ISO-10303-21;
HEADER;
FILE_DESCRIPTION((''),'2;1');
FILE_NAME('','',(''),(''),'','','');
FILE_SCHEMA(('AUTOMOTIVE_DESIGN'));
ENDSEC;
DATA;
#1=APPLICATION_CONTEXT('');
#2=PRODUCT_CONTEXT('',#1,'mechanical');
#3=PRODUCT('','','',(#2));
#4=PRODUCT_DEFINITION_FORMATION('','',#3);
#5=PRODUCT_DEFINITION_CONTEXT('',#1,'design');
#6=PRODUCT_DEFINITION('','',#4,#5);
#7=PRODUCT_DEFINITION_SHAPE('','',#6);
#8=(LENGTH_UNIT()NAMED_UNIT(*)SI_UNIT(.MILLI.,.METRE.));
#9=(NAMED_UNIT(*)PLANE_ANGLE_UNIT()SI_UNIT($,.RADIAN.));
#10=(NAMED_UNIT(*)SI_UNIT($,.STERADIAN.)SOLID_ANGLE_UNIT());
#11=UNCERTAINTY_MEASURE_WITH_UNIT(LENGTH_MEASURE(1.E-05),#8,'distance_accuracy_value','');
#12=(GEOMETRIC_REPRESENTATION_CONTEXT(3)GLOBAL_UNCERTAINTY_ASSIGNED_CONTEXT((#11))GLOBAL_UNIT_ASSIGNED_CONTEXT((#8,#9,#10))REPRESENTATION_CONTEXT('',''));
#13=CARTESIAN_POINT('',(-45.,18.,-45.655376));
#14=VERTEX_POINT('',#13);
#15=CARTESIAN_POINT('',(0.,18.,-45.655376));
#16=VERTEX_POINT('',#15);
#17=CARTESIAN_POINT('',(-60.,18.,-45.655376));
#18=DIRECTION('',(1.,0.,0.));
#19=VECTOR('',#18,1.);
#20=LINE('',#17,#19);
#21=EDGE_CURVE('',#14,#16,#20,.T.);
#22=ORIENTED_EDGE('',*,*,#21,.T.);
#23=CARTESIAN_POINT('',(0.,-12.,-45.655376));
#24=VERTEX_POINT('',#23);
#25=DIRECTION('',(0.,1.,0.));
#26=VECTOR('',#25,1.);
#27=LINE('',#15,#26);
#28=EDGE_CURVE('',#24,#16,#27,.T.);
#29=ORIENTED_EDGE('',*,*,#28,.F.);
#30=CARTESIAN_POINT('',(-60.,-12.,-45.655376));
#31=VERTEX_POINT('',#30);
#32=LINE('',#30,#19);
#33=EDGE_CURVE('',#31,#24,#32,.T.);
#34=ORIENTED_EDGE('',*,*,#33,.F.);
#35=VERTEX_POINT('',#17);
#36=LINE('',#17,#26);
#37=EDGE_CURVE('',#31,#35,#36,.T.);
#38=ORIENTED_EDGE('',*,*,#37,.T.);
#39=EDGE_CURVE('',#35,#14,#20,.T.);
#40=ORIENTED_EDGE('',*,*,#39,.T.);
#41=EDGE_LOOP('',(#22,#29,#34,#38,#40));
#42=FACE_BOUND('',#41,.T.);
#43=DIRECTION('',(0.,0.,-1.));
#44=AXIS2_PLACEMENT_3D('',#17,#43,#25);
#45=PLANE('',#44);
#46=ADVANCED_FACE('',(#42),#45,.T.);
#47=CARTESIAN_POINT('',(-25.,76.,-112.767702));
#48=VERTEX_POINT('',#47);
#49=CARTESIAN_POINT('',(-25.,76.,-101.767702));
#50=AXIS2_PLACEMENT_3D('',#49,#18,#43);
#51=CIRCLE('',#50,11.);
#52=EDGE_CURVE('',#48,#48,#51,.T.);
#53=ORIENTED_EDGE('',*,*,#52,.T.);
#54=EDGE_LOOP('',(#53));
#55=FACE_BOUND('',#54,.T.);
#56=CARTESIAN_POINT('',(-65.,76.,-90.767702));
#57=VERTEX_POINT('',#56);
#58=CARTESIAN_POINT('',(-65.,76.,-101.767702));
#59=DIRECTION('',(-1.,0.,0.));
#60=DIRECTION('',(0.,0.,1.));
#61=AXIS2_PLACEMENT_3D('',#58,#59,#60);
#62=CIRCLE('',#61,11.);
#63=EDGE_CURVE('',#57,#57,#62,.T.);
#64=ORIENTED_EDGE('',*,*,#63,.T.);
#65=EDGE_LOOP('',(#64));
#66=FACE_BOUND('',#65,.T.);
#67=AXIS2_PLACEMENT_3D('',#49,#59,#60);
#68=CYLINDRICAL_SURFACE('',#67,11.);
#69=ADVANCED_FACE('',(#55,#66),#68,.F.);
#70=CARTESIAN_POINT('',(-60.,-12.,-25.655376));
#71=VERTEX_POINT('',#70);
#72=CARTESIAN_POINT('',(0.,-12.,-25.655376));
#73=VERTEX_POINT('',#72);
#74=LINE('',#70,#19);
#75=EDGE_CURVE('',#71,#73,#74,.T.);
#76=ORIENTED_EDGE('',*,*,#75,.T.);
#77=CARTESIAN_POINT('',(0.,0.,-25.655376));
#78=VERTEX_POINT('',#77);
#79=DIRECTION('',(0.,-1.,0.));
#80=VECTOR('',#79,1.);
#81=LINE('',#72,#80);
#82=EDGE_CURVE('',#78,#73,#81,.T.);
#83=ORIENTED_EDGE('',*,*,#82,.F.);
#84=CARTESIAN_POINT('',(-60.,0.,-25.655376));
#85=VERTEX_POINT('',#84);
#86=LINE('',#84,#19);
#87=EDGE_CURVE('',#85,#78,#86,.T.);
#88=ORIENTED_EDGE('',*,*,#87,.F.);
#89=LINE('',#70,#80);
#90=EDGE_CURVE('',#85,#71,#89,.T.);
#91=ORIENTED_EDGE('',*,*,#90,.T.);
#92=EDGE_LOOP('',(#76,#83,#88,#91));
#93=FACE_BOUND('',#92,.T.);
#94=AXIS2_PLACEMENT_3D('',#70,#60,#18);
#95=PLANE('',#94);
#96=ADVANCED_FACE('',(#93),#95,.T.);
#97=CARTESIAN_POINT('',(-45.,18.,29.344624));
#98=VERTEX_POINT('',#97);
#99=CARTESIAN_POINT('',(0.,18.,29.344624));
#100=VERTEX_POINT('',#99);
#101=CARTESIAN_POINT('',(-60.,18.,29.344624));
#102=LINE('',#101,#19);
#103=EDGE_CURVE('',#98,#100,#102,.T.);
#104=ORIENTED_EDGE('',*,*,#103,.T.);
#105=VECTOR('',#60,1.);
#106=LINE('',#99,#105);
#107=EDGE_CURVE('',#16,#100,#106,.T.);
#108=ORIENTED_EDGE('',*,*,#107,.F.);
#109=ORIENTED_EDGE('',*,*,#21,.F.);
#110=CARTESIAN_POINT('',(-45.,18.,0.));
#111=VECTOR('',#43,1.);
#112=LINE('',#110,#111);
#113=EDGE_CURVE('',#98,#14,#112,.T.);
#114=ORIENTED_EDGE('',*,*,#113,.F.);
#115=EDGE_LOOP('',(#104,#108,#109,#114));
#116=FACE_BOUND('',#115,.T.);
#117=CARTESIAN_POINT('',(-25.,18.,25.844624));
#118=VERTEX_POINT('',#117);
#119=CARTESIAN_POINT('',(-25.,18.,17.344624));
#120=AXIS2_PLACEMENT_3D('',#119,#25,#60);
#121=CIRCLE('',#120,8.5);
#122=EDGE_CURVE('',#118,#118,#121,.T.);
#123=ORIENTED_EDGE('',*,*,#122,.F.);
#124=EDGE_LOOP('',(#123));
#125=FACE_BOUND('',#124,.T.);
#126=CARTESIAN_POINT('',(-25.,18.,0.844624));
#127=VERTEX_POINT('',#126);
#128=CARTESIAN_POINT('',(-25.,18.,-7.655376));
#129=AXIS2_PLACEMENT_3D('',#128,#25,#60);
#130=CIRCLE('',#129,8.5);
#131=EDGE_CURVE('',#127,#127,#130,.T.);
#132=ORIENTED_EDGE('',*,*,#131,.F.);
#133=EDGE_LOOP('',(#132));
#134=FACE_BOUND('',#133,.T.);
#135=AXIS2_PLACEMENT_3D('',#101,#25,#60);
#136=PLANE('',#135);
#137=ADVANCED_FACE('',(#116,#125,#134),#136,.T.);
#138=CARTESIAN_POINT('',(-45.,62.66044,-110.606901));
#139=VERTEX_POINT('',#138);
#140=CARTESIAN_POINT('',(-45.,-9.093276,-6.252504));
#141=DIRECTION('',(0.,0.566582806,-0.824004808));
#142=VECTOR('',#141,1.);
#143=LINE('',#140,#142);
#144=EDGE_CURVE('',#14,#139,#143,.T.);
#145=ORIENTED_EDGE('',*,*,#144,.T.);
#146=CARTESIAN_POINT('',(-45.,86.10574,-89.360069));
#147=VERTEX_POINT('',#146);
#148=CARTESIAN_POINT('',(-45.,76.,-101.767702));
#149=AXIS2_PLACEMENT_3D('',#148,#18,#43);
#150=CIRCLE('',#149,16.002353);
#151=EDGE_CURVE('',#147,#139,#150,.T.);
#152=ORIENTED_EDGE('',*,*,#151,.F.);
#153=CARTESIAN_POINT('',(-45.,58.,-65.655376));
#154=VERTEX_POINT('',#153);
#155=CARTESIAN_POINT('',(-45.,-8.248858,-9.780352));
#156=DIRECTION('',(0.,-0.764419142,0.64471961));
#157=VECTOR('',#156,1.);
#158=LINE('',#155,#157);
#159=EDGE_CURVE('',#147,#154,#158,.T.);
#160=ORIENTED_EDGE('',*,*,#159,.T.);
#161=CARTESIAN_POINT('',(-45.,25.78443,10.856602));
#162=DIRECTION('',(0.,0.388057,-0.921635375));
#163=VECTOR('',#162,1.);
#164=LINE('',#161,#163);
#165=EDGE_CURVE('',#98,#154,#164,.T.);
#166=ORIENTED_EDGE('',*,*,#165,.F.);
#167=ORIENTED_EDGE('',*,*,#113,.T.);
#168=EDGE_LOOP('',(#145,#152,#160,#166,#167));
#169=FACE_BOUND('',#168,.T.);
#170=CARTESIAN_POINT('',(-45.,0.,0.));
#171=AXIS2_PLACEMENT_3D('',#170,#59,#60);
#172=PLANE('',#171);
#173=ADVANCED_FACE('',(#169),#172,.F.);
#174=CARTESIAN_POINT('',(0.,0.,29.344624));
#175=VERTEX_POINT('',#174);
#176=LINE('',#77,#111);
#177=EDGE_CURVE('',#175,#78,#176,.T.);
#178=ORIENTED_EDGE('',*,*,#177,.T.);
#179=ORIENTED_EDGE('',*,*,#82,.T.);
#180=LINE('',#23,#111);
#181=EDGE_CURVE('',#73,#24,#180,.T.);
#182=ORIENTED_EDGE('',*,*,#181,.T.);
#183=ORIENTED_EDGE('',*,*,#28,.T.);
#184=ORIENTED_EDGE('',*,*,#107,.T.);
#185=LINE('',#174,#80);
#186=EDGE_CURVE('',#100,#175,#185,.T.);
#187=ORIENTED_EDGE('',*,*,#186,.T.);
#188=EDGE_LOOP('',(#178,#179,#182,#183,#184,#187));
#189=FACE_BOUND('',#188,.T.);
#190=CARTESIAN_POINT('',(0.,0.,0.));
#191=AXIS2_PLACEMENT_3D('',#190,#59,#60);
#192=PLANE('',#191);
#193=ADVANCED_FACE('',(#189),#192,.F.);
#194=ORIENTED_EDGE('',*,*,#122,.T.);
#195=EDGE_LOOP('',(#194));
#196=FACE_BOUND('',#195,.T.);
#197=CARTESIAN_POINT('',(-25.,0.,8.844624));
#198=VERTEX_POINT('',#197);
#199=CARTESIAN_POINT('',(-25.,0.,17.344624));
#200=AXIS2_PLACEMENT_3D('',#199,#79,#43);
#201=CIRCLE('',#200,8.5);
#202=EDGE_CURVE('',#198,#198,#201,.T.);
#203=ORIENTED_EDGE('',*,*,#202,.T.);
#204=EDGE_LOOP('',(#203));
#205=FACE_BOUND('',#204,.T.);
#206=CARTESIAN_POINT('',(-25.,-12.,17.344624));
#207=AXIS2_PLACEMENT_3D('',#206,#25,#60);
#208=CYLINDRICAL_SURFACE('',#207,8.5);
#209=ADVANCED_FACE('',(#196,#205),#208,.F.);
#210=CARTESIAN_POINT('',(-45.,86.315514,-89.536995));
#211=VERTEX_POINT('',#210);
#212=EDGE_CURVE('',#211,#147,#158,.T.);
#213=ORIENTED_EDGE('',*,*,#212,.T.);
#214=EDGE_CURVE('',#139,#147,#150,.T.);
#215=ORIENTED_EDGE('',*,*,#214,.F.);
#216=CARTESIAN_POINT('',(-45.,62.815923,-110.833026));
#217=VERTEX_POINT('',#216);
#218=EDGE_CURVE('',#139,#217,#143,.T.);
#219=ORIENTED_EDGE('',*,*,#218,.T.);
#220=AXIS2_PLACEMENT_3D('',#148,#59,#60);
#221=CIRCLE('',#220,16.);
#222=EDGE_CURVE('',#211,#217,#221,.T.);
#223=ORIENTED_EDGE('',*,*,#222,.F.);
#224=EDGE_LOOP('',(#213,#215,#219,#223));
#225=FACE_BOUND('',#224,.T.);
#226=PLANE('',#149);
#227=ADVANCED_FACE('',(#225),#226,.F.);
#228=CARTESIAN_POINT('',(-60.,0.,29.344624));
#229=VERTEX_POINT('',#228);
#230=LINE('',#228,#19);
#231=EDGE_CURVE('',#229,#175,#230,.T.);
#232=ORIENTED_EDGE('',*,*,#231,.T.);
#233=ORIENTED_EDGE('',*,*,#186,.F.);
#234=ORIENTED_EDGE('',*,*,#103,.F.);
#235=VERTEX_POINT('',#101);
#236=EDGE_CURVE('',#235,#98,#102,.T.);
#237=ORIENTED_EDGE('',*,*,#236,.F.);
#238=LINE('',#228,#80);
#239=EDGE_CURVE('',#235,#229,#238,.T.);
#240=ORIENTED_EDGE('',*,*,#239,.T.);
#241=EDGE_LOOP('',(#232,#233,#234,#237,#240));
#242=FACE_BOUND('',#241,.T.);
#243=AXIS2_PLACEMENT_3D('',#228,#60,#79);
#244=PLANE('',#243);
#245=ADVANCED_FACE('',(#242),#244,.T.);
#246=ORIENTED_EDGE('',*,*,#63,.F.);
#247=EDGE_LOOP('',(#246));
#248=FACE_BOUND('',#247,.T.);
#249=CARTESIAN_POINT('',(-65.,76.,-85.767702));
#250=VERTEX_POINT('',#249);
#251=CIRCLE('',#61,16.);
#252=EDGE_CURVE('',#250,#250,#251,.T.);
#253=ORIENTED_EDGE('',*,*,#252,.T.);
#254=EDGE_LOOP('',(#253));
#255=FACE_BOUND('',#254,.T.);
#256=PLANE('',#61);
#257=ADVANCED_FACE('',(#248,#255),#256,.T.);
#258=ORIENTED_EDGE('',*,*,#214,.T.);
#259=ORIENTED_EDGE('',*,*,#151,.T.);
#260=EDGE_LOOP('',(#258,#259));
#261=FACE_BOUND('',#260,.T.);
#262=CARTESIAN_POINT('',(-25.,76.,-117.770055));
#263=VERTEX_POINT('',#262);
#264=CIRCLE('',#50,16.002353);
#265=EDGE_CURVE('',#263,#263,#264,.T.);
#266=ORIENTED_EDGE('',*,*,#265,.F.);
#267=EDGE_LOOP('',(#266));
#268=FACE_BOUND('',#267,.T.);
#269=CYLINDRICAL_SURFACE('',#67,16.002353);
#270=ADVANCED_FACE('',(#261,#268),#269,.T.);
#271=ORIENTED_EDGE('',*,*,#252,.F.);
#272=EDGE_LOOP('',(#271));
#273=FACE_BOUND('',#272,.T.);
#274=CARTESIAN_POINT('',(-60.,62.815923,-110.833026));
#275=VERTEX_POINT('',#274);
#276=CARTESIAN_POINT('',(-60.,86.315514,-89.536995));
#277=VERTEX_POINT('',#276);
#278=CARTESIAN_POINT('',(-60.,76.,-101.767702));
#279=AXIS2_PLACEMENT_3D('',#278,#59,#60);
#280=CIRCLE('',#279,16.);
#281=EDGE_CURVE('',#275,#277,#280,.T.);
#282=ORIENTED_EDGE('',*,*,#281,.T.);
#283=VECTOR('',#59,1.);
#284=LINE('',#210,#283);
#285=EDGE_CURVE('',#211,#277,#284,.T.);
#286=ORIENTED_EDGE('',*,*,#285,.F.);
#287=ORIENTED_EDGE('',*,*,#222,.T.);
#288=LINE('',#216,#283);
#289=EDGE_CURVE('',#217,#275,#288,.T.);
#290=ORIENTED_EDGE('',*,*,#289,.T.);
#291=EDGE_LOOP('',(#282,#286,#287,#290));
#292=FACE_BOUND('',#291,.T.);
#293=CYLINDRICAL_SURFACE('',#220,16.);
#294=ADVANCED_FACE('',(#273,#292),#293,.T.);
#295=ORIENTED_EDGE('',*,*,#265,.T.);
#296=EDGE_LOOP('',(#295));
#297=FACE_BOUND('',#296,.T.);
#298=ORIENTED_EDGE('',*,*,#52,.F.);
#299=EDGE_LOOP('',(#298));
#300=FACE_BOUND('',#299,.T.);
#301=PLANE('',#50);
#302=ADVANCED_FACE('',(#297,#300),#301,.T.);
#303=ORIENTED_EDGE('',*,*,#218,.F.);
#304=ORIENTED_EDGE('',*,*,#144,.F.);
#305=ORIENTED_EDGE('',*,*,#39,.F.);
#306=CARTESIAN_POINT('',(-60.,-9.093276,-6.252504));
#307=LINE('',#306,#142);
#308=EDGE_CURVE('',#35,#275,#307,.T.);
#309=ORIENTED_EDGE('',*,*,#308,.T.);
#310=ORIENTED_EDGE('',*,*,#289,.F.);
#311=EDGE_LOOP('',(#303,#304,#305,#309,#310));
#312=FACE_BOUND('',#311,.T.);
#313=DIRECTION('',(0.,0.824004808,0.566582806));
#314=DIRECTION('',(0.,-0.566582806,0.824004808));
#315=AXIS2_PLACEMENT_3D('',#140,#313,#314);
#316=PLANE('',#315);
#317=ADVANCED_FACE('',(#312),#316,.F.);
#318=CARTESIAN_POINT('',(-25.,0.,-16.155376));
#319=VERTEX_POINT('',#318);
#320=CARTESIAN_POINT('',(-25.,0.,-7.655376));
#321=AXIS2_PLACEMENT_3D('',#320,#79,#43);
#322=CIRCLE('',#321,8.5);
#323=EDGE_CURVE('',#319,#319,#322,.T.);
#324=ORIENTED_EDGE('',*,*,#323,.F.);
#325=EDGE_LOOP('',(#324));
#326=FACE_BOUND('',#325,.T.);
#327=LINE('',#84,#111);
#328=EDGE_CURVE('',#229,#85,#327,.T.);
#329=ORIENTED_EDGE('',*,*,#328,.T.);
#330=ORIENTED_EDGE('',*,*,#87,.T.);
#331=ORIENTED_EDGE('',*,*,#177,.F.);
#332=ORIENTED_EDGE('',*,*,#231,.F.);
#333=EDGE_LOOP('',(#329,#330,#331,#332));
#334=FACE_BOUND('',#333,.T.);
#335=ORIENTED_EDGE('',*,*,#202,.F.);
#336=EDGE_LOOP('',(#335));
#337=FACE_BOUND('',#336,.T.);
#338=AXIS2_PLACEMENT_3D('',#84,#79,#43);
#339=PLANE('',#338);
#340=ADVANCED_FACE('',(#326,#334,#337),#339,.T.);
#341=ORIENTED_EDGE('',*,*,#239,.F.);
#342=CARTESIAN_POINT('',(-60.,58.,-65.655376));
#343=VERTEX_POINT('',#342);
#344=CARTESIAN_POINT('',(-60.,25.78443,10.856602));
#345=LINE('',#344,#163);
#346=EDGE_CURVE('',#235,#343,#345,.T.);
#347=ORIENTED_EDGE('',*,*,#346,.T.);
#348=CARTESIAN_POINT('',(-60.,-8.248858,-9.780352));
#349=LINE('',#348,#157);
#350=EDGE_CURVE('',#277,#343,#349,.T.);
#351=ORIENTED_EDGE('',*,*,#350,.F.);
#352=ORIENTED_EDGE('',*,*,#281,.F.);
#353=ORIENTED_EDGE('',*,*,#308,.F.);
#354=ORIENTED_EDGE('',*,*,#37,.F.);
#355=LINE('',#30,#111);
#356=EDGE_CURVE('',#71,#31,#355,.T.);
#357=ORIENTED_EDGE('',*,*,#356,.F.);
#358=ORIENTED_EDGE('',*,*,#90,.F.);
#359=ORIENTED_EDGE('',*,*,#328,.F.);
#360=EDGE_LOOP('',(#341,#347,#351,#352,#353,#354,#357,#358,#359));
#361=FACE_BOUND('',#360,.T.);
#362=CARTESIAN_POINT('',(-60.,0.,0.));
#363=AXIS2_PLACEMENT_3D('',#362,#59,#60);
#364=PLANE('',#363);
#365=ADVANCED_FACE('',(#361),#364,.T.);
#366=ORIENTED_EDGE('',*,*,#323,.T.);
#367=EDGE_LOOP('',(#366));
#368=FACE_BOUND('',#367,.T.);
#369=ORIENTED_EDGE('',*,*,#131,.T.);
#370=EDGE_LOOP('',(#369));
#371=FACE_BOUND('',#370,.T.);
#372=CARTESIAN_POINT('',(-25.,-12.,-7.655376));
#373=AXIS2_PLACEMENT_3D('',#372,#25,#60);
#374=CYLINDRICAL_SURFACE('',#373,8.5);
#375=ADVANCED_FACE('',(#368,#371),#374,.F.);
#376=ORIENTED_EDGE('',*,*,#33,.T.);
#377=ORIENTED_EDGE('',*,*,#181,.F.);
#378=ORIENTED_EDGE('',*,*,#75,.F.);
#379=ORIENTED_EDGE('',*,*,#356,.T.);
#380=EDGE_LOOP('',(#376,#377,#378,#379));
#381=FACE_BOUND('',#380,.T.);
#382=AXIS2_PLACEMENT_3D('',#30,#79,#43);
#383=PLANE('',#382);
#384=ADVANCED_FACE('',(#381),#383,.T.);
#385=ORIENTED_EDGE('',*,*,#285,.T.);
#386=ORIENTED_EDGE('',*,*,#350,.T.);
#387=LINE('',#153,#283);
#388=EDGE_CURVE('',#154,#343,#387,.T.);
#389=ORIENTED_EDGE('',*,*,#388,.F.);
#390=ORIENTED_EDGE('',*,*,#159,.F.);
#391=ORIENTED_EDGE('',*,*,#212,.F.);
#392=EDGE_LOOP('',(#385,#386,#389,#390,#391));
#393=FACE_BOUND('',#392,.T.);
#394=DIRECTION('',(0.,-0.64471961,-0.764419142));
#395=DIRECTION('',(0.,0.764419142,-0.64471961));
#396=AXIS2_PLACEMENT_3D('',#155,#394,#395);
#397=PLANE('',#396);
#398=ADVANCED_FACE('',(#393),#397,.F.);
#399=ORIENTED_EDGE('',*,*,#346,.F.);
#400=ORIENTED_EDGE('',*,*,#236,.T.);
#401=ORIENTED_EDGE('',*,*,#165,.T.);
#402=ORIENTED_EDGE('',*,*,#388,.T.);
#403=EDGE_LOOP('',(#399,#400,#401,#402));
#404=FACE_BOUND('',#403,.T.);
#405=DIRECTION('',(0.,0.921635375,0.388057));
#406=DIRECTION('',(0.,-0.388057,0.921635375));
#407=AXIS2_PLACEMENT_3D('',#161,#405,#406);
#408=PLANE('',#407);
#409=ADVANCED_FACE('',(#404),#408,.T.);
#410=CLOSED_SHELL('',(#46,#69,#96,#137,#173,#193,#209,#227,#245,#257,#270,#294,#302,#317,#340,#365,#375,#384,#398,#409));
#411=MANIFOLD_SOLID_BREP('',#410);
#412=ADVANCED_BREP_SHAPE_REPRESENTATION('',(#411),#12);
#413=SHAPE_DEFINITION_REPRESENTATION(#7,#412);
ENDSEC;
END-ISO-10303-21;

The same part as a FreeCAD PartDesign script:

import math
import FreeCAD as App
import Part
import Sketcher


def add_polygon(sketch, points):
    """Adds a closed chain of lines whose ends are joined by coincident constraints."""
    first, n = sketch.GeometryCount, len(points)
    for a, b in zip(points, points[1:] + points[:1]):
        sketch.addGeometry(Part.LineSegment(App.Vector(*a, 0), App.Vector(*b, 0)), False)
    for i in range(n):
        sketch.addConstraint(Sketcher.Constraint("Coincident", first + i, 2, first + (i + 1) % n, 1))

doc = App.newDocument("Part")
params = doc.addObject("Spreadsheet::Sheet", "Params")
for row, (alias, value) in enumerate([
    ("sketch1_width", "18 mm"),
    ("sketch1_width2", "12 mm"),
    ("sketch1_height", "55 mm"),
    ("sketch1_height2", "20 mm"),
    ("pad1_length", "60 mm"),
    ("sketch2_radius", "16 mm"),
    ("sketch2_height", "75 mm"),
    ("pad2_length", "15 mm"),
    ("sketch3_diameter", "22 mm"),
    ("pad3_length", "20 mm"),
    ("sketch4_diameter", "32 mm"),
    ("sketch4_diameter2", "22 mm"),
    ("pad4_length", "5 mm"),
    ("sketch5_diameter", "22 mm"),
    ("sketch6_diameter", "17 mm"),
], start=1):
    params.set(f"A{row}", alias)
    params.set(f"B{row}", "=" + value)
    params.setAlias(f"B{row}", alias)

body = doc.addObject("PartDesign::Body", "Body")

sketch1 = body.newObject("Sketcher::SketchObject", "Sketch")
sketch1.AttachmentSupport = (doc.getObject("YZ_Plane"), [""])
sketch1.MapMode = "FlatFace"
add_polygon(sketch1, [(18, 29), (0, 29), (0, -26), (-12, -26), (-12, -46), (18, -46)])
sketch1.addConstraint([
    Sketcher.Constraint("Horizontal", 0),
    Sketcher.Constraint("Vertical", 1),
    Sketcher.Constraint("Horizontal", 2),
    Sketcher.Constraint("Vertical", 3),
    Sketcher.Constraint("Horizontal", 4),
    Sketcher.Constraint("Vertical", 5),
    Sketcher.Constraint("PointOnObject", 0, 2, -2),
    Sketcher.Constraint("DistanceX", 0, 2, 0, 1, 18.0),
    Sketcher.Constraint("DistanceX", 2, 2, 2, 1, 12.0),
    Sketcher.Constraint("DistanceY", 1, 2, 1, 1, 55.0),
    Sketcher.Constraint("DistanceY", 3, 2, 3, 1, 20.0),
    Sketcher.Constraint("DistanceY", -1, 1, 0, 2, 29.344624),
])
sketch1.setExpression("Constraints[13]", "Params.sketch1_width")
sketch1.setExpression("Constraints[14]", "Params.sketch1_width2")
sketch1.setExpression("Constraints[15]", "Params.sketch1_height")
sketch1.setExpression("Constraints[16]", "Params.sketch1_height2")
pad1 = body.newObject("PartDesign::Pad", "Pad")
pad1.Profile = sketch1
pad1.setExpression("Length", "Params.pad1_length")
pad1.Reversed = True

sketch2 = body.newObject("Sketcher::SketchObject", "Sketch001")
sketch2.AttachmentSupport = (doc.getObject("YZ_Plane"), [""])
sketch2.MapMode = "FlatFace"
sketch2.AttachmentOffset = App.Placement(App.Vector(0, 0, -60), App.Rotation())
sketch2.addGeometry([
    Part.LineSegment(App.Vector(18, -46, 0), App.Vector(18, 29, 0)),
    Part.LineSegment(App.Vector(18, 29, 0), App.Vector(58, -66, 0)),
    Part.LineSegment(App.Vector(58, -66, 0), App.Vector(86, -90, 0)),
    Part.ArcOfCircle(Part.Circle(App.Vector(76, -102, 0), App.Vector(0, 0, 1), 16), math.radians(-145), math.radians(50)),
    Part.LineSegment(App.Vector(63, -111, 0), App.Vector(18, -46, 0)),
], False)
sketch2.addConstraint([
    Sketcher.Constraint("Coincident", 0, 2, 1, 1),
    Sketcher.Constraint("Coincident", 1, 2, 2, 1),
    Sketcher.Constraint("Tangent", 2, 2, 3, 2),
    Sketcher.Constraint("Tangent", 3, 1, 4, 1),
    Sketcher.Constraint("Coincident", 4, 2, 0, 1),
    Sketcher.Constraint("Vertical", 0),
    Sketcher.Constraint("Radius", 3, 16.0),
    Sketcher.Constraint("DistanceY", 0, 1, 0, 2, 75.0),
    Sketcher.Constraint("DistanceX", -1, 1, 3, 3, 76.0),
    Sketcher.Constraint("DistanceX", -1, 1, 0, 2, 18.0),
    Sketcher.Constraint("DistanceX", -1, 1, 1, 2, 58.0),
    Sketcher.Constraint("DistanceY", 1, 2, 0, 2, 95.0),
    Sketcher.Constraint("DistanceY", 3, 3, -1, 1, 101.767702),
    Sketcher.Constraint("Distance", 2, 37.041869),
])
sketch2.setExpression("Constraints[6]", "Params.sketch2_radius")
sketch2.setExpression("Constraints[7]", "Params.sketch2_height")
pad2 = body.newObject("PartDesign::Pad", "Pad001")
pad2.Profile = sketch2
pad2.setExpression("Length", "Params.pad2_length")

sketch3 = body.newObject("Sketcher::SketchObject", "Sketch002")
sketch3.AttachmentSupport = (doc.getObject("YZ_Plane"), [""])
sketch3.MapMode = "FlatFace"
sketch3.AttachmentOffset = App.Placement(App.Vector(0, 0, -45), App.Rotation())
sketch3.addGeometry([
    Part.Circle(App.Vector(76, -102, 0), App.Vector(0, 0, 1), 16),
    Part.Circle(App.Vector(76, -102, 0), App.Vector(0, 0, 1), 11),
], False)
sketch3.addConstraint([
    Sketcher.Constraint("Coincident", 1, 3, 0, 3),
    Sketcher.Constraint("Diameter", 1, 22.0),
    Sketcher.Constraint("DistanceX", -1, 1, 0, 3, 76.0),
    Sketcher.Constraint("Diameter", 0, 32.004706),
    Sketcher.Constraint("DistanceY", 0, 3, -1, 1, 101.767702),
])
sketch3.setExpression("Constraints[1]", "Params.sketch3_diameter")
pad3 = body.newObject("PartDesign::Pad", "Pad002")
pad3.Profile = sketch3
pad3.setExpression("Length", "Params.pad3_length")

sketch4 = body.newObject("Sketcher::SketchObject", "Sketch003")
sketch4.AttachmentSupport = (doc.getObject("YZ_Plane"), [""])
sketch4.MapMode = "FlatFace"
sketch4.AttachmentOffset = App.Placement(App.Vector(0, 0, -65), App.Rotation())
sketch4.addGeometry([
    Part.Circle(App.Vector(76, -102, 0), App.Vector(0, 0, 1), 16),
    Part.Circle(App.Vector(76, -102, 0), App.Vector(0, 0, 1), 11),
], False)
sketch4.addConstraint([
    Sketcher.Constraint("Coincident", 1, 3, 0, 3),
    Sketcher.Constraint("Diameter", 0, 32.0),
    Sketcher.Constraint("Diameter", 1, 22.0),
    Sketcher.Constraint("DistanceX", -1, 1, 0, 3, 76.0),
    Sketcher.Constraint("DistanceY", 0, 3, -1, 1, 101.767702),
])
sketch4.setExpression("Constraints[1]", "Params.sketch4_diameter")
sketch4.setExpression("Constraints[2]", "Params.sketch4_diameter2")
pad4 = body.newObject("PartDesign::Pad", "Pad003")
pad4.Profile = sketch4
pad4.setExpression("Length", "Params.pad4_length")

sketch5 = body.newObject("Sketcher::SketchObject", "Sketch004")
sketch5.AttachmentSupport = (doc.getObject("YZ_Plane"), [""])
sketch5.MapMode = "FlatFace"
sketch5.AttachmentOffset = App.Placement(App.Vector(0, 0, -45), App.Rotation())
sketch5.addGeometry(Part.Circle(App.Vector(76, -102, 0), App.Vector(0, 0, 1), 11), False)
sketch5.addConstraint([
    Sketcher.Constraint("Diameter", 0, 22.0),
    Sketcher.Constraint("DistanceX", -1, 1, 0, 3, 76.0),
    Sketcher.Constraint("DistanceY", 0, 3, -1, 1, 101.767702),
])
sketch5.setExpression("Constraints[0]", "Params.sketch5_diameter")
pocket1 = body.newObject("PartDesign::Pocket", "Pocket")
pocket1.Profile = sketch5
pocket1.Type = "ThroughAll"

sketch6 = body.newObject("Sketcher::SketchObject", "Sketch005")
sketch6.AttachmentSupport = (doc.getObject("XZ_Plane"), [""])
sketch6.MapMode = "FlatFace"
sketch6.AttachmentOffset = App.Placement(App.Vector(0, 0, -18), App.Rotation())
sketch6.addGeometry([
    Part.Circle(App.Vector(-25, 17, 0), App.Vector(0, 0, 1), 8),
    Part.Circle(App.Vector(-25, -8, 0), App.Vector(0, 0, 1), 8),
], False)
sketch6.addConstraint([
    Sketcher.Constraint("Equal", 0, 1),
    Sketcher.Constraint("Vertical", 0, 3, 1, 3),
    Sketcher.Constraint("Diameter", 0, 17.0),
    Sketcher.Constraint("DistanceX", 0, 3, -1, 1, 25.0),
    Sketcher.Constraint("DistanceY", 1, 3, 0, 3, 25.0),
    Sketcher.Constraint("DistanceY", -1, 1, 0, 3, 17.344624),
])
sketch6.setExpression("Constraints[2]", "Params.sketch6_diameter")
pocket2 = body.newObject("PartDesign::Pocket", "Pocket001")
pocket2.Profile = sketch6
pocket2.Type = "ThroughAll"
pocket2.Reversed = True

doc.recompute()
